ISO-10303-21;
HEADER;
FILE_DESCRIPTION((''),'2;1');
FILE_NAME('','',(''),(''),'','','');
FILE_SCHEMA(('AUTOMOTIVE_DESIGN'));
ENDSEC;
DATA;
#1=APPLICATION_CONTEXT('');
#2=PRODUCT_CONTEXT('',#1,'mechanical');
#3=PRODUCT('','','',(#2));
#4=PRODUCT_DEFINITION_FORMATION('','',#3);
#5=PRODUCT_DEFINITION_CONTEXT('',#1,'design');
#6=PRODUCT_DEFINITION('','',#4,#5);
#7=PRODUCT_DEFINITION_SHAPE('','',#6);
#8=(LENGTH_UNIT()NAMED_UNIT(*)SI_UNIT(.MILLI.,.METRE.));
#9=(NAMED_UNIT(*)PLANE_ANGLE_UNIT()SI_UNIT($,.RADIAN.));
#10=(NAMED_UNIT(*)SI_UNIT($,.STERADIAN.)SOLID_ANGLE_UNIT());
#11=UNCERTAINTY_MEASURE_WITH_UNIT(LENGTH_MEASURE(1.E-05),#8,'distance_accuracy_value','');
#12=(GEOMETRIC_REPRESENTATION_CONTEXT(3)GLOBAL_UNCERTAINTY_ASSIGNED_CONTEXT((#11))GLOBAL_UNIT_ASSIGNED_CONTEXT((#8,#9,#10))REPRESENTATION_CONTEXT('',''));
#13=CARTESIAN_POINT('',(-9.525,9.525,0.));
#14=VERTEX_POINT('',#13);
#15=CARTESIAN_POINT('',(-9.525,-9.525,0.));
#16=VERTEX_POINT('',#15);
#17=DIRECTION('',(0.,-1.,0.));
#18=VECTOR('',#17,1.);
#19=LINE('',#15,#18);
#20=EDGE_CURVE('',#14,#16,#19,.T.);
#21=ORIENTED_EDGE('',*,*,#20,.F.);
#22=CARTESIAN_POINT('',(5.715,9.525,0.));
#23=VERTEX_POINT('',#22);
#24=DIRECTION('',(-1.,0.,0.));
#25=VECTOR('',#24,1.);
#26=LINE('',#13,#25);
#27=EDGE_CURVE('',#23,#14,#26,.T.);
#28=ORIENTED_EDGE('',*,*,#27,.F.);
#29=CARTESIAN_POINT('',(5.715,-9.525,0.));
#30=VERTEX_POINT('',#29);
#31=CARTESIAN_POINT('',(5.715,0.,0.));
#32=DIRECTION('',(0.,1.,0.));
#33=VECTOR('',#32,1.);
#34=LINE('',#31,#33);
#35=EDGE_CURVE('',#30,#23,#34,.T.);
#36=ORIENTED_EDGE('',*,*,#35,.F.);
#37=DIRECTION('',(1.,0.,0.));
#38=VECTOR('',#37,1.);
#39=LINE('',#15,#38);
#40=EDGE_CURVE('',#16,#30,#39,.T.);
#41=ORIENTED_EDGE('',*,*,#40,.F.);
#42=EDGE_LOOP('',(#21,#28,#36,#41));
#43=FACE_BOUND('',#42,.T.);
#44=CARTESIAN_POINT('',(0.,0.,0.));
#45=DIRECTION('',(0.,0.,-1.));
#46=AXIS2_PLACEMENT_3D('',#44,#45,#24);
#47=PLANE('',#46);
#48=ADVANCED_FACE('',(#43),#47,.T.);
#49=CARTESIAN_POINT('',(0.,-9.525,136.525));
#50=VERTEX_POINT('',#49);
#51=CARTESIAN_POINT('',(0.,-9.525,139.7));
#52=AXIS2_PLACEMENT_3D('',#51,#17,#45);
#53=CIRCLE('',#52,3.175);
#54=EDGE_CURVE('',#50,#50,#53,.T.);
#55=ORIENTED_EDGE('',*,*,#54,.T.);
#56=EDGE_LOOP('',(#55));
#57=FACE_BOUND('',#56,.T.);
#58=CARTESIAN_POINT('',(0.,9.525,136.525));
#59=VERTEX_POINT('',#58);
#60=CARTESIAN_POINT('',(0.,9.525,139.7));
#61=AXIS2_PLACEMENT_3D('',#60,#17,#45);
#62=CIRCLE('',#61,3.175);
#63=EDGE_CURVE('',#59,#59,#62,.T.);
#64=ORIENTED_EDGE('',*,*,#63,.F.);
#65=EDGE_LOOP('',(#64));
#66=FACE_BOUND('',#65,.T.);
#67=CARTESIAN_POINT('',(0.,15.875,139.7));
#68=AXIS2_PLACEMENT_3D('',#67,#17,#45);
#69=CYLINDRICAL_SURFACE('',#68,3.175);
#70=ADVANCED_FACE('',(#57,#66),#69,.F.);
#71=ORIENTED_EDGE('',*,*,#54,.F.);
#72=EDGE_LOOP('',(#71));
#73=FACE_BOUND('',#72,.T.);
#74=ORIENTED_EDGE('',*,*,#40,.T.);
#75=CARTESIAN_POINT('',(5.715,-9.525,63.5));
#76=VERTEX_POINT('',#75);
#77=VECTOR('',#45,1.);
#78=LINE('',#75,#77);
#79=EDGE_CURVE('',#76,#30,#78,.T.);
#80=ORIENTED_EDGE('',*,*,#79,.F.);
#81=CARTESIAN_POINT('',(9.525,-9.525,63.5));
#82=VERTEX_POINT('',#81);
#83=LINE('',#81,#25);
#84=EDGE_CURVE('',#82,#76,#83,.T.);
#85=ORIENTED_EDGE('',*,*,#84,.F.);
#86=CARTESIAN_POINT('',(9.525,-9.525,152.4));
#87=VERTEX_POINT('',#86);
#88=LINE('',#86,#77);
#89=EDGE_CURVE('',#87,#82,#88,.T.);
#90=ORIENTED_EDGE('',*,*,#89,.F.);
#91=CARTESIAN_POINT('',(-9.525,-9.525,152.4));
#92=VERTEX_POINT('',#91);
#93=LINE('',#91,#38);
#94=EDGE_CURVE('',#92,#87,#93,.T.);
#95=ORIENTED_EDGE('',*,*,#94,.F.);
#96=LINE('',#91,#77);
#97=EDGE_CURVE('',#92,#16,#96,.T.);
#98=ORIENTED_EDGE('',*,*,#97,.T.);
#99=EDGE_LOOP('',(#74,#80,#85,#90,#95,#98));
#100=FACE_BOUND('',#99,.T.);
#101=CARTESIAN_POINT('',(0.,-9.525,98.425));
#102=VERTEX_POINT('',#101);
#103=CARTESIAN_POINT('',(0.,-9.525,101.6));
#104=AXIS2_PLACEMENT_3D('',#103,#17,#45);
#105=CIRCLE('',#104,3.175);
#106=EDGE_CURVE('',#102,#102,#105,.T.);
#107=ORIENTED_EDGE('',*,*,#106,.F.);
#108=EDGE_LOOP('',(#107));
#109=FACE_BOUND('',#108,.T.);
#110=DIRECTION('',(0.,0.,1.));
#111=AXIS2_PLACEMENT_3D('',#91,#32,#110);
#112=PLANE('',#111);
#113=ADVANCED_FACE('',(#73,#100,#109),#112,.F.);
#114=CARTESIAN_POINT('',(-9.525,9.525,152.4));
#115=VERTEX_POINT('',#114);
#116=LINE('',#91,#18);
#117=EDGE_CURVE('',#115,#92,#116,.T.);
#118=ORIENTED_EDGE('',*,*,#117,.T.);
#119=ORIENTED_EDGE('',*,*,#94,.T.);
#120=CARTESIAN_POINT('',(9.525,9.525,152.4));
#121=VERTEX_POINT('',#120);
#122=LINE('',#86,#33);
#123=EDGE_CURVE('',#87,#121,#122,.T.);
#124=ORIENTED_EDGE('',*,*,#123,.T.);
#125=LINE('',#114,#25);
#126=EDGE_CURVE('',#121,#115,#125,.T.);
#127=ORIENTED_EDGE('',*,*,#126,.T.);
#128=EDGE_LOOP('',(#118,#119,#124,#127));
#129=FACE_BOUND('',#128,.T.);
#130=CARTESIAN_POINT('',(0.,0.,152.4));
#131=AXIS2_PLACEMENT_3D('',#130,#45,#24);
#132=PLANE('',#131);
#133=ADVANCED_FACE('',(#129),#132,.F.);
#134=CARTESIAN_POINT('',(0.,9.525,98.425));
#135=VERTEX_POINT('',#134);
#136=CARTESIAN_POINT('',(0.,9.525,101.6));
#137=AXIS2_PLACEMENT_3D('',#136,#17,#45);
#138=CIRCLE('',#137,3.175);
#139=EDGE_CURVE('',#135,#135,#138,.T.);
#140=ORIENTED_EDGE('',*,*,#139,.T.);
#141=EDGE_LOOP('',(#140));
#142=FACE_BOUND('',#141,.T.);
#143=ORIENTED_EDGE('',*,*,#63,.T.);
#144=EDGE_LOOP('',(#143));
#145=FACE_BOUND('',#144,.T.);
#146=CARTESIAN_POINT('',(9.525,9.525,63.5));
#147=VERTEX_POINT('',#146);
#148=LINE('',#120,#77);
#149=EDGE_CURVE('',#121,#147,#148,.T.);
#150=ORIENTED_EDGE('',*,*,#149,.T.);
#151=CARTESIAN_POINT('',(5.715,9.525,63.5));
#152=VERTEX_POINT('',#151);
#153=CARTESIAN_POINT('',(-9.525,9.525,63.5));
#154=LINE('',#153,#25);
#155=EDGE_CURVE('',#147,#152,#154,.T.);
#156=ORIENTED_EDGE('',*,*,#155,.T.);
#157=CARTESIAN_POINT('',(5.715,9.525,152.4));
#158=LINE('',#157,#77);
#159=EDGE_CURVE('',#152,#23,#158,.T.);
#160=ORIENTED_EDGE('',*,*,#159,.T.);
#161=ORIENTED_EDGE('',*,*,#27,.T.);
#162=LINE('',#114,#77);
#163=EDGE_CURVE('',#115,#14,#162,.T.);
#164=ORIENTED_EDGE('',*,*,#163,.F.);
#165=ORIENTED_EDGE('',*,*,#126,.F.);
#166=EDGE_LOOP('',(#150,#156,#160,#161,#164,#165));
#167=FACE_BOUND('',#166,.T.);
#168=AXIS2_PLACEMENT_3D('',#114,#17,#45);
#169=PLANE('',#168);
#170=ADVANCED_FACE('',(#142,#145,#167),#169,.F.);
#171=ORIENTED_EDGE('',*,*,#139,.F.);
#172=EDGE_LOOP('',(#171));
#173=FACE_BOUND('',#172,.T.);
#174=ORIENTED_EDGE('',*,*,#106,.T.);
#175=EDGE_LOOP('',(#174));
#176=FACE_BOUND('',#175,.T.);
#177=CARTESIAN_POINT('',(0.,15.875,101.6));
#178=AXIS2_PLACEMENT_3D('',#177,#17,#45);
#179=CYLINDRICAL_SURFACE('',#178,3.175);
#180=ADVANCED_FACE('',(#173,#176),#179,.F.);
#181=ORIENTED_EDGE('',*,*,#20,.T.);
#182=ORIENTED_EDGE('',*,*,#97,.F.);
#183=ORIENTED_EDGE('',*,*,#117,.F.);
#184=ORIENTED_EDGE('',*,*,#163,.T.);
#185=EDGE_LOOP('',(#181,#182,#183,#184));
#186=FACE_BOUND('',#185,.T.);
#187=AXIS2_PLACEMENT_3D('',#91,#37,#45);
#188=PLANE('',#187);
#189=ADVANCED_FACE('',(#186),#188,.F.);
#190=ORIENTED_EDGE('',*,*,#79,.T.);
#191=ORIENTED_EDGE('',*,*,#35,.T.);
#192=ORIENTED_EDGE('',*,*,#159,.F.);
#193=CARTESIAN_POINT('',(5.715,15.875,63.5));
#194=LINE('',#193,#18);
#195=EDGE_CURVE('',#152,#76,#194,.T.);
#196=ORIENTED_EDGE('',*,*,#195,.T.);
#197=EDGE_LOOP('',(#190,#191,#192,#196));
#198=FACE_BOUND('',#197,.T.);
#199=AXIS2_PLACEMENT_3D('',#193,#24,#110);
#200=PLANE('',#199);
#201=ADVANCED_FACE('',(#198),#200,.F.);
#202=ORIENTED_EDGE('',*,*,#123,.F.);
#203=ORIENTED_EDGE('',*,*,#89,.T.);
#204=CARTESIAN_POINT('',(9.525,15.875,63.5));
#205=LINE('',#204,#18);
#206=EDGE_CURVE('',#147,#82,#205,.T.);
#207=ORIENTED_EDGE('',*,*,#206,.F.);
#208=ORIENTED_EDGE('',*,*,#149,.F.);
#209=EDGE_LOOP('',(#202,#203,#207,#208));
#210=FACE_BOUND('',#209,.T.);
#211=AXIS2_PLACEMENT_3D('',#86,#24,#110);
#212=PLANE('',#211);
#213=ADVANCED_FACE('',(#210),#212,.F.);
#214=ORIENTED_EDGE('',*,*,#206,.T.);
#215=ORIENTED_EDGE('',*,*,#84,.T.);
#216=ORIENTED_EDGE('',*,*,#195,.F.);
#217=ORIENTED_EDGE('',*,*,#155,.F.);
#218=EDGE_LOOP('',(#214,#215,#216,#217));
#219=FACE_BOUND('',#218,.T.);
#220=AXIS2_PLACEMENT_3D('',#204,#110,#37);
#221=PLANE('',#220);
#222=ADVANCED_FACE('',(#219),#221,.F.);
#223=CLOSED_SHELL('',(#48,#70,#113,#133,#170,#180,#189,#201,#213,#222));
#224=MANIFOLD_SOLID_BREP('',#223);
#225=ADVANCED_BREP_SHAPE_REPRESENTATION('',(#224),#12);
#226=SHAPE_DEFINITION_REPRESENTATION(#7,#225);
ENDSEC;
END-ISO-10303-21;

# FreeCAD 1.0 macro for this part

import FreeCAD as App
import Part
import Sketcher

V = App.Vector
Q = App.Units.Quantity


def add_polygon(sketch, points):
    """Adds a closed chain of lines whose ends are joined by coincident constraints."""
    first, n = sketch.GeometryCount, len(points)
    for a, b in zip(points, points[1:] + points[:1]):
        sketch.addGeometry(Part.LineSegment(App.Vector(*a, 0), App.Vector(*b, 0)), False)
    for i in range(n):
        sketch.addConstraint(Sketcher.Constraint("Coincident", first + i, 2, first + (i + 1) % n, 1))

doc = App.newDocument("Part")
params = doc.addObject("Spreadsheet::Sheet", "Params")
for row, (alias, value) in enumerate([
    ("sketch1_width", "0.75 in"),
    ("pad1_length", "6 in"),
    ("sketch2_diameter", "0.25 in"),
    ("sketch2_height", "2.5 in"),
    ("sketch2_width", "0.15 in"),
    ("pocket1_length", "1 in"),
], start=1):
    params.set(f"A{row}", alias)
    params.set(f"B{row}", "=" + value)
    params.setAlias(f"B{row}", alias)

body = doc.addObject("PartDesign::Body", "Body")

sketch1 = body.newObject("Sketcher::SketchObject", "Sketch")
sketch1.AttachmentSupport = (doc.getObject("XY_Plane"), [""])
sketch1.MapMode = "FlatFace"
add_polygon(sketch1, [(-9.525, 9.525), (-9.525, -9.525), (9.525, -9.525), (9.525, 9.525)])
sketch1.addConstraint(Sketcher.Constraint("Vertical", 0))
sketch1.addConstraint(Sketcher.Constraint("Horizontal", 1))
sketch1.addConstraint(Sketcher.Constraint("Vertical", 2))
sketch1.addConstraint(Sketcher.Constraint("Horizontal", 3))
sketch1.addConstraint(Sketcher.Constraint("Symmetric", 0, 2, 2, 2, -1, 1))
sketch1.addConstraint(Sketcher.Constraint("Equal", 3, 0))
sketch1.addConstraint(Sketcher.Constraint("DistanceX", 1, 1, 1, 2, Q("0.75 in")))
sketch1.setExpression("Constraints[10]", "Params.sketch1_width")
pad1 = body.newObject("PartDesign::Pad", "Pad")
pad1.Profile = sketch1
pad1.setExpression("Length", "Params.pad1_length")

sketch2 = body.newObject("Sketcher::SketchObject", "Sketch001")
sketch2.AttachmentSupport = (doc.getObject("XZ_Plane"), [""])
sketch2.MapMode = "FlatFace"
sketch2.AttachmentOffset = App.Placement(V(0, 0, 0.375 * 25.4), App.Rotation())
sketch2.addGeometry(Part.Circle(V(0, 139.7, 0), V(0, 0, 1), 3.175), False)
sketch2.addGeometry(Part.Circle(V(0, 101.6, 0), V(0, 0, 1), 3.175), False)
add_polygon(sketch2, [(5.715, 63.5), (5.715, 0), (9.525, 0), (9.525, 63.5)])
sketch2.addConstraint(Sketcher.Constraint("Vertical", 2))
sketch2.addConstraint(Sketcher.Constraint("Horizontal", 3))
sketch2.addConstraint(Sketcher.Constraint("Vertical", 4))
sketch2.addConstraint(Sketcher.Constraint("Horizontal", 5))
sketch2.addConstraint(Sketcher.Constraint("Equal", 0, 1))
sketch2.addConstraint(Sketcher.Constraint("PointOnObject", 0, 3, -2))
sketch2.addConstraint(Sketcher.Constraint("PointOnObject", 1, 3, -2))
sketch2.addConstraint(Sketcher.Constraint("PointOnObject", 2, 2, -1))
sketch2.addConstraint(Sketcher.Constraint("Diameter", 0, Q("0.25 in")))
sketch2.addConstraint(Sketcher.Constraint("DistanceY", 2, 2, 2, 1, Q("2.5 in")))
sketch2.addConstraint(Sketcher.Constraint("DistanceY", -1, 1, 1, 3, Q("4 in")))
sketch2.addConstraint(Sketcher.Constraint("DistanceY", 4, 2, 0, 3, Q("3 in")))
sketch2.addConstraint(Sketcher.Constraint("DistanceX", 3, 1, 3, 2, Q("0.15 in")))
sketch2.addConstraint(Sketcher.Constraint("DistanceX", -1, 1, 2, 2, Q("0.225 in")))
sketch2.setExpression("Constraints[12]", "Params.sketch2_diameter")
sketch2.setExpression("Constraints[13]", "Params.sketch2_height")
sketch2.setExpression("Constraints[16]", "Params.sketch2_width")
pocket1 = body.newObject("PartDesign::Pocket", "Pocket")
pocket1.Profile = sketch2
pocket1.setExpression("Length", "Params.pocket1_length")

doc.recompute()
